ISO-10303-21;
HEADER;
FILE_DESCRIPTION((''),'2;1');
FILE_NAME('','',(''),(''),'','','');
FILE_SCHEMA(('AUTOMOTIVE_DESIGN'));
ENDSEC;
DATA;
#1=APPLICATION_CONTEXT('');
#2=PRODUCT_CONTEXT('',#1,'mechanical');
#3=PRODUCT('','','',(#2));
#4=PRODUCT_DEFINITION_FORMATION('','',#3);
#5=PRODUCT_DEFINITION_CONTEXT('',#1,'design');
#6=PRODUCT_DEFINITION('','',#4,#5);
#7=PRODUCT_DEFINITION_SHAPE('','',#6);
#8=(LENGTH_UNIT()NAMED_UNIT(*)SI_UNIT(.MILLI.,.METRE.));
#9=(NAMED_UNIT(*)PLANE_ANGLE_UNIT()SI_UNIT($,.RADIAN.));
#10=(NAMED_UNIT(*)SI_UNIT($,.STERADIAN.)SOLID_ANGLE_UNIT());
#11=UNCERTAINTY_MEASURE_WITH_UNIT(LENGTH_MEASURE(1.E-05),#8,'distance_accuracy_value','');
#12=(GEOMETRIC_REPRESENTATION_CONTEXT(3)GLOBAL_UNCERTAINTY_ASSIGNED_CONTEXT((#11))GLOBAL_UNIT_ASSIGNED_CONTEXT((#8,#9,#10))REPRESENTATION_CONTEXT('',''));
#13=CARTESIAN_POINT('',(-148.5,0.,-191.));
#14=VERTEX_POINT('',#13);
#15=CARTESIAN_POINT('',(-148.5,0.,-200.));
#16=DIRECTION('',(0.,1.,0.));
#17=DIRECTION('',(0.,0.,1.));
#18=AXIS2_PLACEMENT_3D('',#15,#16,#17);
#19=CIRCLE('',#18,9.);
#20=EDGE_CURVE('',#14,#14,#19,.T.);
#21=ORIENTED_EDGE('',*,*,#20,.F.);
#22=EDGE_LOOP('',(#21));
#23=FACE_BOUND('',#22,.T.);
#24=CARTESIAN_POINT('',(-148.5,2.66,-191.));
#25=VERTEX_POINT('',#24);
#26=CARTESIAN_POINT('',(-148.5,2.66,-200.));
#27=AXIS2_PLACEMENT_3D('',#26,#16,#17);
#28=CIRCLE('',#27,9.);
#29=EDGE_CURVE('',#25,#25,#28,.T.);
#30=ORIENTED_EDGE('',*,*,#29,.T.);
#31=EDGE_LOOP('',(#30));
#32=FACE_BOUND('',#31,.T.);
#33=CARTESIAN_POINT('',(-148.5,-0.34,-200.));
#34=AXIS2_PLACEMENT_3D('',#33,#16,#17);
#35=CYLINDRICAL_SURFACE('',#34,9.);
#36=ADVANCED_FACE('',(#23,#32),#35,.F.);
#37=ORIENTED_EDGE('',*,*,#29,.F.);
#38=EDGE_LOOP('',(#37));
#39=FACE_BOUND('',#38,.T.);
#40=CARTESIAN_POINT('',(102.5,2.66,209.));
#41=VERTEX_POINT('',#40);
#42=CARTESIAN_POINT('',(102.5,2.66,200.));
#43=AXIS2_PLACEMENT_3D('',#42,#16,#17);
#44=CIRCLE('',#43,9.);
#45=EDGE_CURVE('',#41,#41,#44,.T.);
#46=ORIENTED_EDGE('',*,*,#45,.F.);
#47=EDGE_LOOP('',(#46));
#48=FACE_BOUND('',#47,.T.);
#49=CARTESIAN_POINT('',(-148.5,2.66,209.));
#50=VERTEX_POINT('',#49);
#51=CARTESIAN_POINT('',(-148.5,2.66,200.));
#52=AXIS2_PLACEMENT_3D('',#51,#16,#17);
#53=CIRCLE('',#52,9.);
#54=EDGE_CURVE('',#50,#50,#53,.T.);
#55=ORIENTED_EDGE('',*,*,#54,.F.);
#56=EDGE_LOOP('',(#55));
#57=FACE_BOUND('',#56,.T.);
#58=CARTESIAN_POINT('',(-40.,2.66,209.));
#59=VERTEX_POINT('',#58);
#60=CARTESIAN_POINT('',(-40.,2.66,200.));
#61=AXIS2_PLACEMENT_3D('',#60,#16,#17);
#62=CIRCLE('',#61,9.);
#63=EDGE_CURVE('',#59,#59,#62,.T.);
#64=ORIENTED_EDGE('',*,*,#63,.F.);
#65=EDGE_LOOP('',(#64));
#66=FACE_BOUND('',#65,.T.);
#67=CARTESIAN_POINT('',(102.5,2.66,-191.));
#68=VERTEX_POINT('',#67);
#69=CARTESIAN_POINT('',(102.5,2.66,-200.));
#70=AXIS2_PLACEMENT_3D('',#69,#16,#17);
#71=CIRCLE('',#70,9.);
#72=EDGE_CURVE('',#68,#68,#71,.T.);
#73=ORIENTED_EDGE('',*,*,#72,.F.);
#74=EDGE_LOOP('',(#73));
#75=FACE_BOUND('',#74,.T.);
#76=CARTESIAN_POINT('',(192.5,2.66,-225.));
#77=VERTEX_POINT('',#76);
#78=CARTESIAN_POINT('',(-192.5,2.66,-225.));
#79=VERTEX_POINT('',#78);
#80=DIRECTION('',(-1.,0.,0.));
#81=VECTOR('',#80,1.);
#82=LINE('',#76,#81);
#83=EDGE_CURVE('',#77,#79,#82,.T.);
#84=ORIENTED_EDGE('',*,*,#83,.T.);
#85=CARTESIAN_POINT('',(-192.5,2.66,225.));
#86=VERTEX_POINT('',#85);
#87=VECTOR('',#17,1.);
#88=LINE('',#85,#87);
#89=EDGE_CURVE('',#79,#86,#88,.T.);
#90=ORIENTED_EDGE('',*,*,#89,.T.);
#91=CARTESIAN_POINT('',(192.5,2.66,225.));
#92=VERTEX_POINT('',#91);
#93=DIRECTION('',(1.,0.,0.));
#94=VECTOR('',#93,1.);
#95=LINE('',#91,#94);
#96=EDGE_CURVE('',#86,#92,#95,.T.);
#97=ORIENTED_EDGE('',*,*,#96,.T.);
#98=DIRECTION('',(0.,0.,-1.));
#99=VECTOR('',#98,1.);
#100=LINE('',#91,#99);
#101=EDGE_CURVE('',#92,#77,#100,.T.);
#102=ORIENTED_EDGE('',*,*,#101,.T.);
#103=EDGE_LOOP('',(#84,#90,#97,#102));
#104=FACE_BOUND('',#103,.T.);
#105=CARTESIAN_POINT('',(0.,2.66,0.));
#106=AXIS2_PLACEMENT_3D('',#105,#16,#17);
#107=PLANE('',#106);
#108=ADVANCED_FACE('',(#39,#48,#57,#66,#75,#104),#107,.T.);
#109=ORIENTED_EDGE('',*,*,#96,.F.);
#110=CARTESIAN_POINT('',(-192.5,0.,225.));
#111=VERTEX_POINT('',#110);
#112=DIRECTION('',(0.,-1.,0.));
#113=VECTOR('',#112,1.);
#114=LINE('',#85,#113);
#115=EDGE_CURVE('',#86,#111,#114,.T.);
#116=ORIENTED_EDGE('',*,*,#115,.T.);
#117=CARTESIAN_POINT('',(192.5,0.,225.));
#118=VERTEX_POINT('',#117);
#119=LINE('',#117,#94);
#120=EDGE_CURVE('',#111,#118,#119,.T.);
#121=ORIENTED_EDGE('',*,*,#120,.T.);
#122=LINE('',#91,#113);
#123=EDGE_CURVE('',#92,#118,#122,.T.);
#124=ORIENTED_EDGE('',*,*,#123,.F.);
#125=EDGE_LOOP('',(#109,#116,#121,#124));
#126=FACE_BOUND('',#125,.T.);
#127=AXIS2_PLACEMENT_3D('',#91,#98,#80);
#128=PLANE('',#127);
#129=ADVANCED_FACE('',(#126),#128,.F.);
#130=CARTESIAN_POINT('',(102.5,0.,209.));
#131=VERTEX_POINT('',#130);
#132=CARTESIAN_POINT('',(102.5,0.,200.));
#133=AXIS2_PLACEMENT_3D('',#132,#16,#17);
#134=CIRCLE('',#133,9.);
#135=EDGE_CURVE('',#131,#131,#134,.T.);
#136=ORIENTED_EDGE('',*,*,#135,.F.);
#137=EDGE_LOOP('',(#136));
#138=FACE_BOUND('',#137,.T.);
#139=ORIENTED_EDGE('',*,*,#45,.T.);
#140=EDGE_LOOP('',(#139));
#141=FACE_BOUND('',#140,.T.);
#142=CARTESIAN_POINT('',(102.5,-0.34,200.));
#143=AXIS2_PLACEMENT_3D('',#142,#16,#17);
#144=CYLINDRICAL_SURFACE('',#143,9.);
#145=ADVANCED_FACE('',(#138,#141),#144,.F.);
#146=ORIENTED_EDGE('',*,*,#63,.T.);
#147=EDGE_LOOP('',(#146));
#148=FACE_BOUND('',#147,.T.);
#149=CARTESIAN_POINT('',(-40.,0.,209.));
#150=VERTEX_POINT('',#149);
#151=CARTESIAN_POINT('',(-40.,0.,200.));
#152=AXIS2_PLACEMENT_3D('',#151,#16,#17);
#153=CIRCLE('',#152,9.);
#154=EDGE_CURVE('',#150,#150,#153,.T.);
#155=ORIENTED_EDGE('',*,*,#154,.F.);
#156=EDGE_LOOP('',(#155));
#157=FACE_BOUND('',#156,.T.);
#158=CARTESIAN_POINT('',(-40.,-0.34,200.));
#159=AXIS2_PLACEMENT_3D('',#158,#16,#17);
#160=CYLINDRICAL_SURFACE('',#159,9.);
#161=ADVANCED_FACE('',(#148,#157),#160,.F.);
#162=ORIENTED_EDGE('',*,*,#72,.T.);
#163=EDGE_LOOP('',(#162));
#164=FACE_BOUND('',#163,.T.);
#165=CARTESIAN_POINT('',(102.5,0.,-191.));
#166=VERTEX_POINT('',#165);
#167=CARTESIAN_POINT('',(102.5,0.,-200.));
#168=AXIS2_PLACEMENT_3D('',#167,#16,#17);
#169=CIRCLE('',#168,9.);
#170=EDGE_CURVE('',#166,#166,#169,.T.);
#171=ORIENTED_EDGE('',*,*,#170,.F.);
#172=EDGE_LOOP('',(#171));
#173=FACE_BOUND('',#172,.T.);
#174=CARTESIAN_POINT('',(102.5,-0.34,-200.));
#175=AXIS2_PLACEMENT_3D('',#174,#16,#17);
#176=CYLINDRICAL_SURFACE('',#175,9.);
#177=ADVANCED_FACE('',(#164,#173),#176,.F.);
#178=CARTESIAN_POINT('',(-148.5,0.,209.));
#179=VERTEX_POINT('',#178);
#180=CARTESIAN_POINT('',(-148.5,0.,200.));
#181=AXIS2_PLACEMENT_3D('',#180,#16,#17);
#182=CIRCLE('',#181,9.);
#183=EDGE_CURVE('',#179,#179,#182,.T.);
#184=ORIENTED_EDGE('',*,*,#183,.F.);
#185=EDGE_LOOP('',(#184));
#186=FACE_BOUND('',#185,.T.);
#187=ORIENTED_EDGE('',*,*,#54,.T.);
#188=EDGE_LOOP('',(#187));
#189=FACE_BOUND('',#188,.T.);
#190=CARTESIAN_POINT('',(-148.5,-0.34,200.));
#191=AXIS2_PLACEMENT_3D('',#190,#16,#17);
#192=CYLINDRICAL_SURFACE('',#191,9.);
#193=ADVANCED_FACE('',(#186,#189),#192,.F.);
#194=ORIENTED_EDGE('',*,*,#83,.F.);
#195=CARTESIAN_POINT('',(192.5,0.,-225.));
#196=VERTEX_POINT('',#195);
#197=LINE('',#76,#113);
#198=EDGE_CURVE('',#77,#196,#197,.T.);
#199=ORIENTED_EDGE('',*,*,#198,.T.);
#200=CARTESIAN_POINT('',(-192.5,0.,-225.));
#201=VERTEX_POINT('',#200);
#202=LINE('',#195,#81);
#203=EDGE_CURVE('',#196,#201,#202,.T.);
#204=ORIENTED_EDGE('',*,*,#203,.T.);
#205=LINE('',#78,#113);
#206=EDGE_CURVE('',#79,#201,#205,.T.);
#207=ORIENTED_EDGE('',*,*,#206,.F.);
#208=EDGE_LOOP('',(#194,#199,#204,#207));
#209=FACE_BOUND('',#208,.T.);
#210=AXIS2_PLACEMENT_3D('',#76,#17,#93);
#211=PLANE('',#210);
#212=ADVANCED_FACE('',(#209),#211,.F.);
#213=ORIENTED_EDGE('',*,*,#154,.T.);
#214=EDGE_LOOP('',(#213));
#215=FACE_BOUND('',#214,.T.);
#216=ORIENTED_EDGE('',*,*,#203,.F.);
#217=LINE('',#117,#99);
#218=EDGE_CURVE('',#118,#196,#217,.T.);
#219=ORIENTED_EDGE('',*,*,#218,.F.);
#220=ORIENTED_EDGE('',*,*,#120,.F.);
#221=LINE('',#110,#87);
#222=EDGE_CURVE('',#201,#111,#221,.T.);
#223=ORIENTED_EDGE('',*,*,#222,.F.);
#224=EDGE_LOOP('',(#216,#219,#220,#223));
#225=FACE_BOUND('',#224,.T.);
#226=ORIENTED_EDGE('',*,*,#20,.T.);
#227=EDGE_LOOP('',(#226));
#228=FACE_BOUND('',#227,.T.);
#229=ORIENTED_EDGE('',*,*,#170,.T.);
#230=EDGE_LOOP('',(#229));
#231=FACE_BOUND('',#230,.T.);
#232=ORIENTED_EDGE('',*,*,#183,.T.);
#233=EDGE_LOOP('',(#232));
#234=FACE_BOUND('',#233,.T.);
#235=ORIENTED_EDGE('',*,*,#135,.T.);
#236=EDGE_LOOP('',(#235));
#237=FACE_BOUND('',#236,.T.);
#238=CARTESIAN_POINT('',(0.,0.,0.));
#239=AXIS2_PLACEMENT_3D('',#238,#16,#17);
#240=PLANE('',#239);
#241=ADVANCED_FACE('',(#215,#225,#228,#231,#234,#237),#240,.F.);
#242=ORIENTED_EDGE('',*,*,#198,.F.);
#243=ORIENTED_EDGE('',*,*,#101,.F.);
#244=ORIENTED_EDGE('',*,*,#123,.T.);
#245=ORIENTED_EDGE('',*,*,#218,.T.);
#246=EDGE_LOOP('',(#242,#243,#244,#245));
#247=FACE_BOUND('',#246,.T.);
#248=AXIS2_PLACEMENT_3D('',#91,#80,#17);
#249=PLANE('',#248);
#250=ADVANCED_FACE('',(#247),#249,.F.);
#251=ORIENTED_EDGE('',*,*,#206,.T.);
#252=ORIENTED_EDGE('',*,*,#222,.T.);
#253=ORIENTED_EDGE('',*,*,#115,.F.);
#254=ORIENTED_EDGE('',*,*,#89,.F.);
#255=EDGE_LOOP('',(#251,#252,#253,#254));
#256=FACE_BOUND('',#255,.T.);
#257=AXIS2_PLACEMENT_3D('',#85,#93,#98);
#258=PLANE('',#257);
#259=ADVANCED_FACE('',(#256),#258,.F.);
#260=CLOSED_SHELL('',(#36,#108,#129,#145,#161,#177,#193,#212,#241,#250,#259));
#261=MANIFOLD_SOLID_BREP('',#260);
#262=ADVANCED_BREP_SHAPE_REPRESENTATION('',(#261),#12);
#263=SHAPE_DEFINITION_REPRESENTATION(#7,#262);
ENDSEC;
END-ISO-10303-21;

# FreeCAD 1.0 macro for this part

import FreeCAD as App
import Part
import Sketcher
from FreeCAD import Vector


def add_polygon(sketch, points):
    """Adds a closed chain of lines whose ends are joined by coincident constraints."""
    first, n = sketch.GeometryCount, len(points)
    for a, b in zip(points, points[1:] + points[:1]):
        sketch.addGeometry(Part.LineSegment(App.Vector(*a, 0), App.Vector(*b, 0)), False)
    for i in range(n):
        sketch.addConstraint(Sketcher.Constraint("Coincident", first + i, 2, first + (i + 1) % n, 1))

doc = App.newDocument("Part")
body = doc.addObject("PartDesign::Body", "Body")

sketch1 = body.newObject("Sketcher::SketchObject", "Sketch")
sketch1.AttachmentSupport = (doc.getObject("XZ_Plane"), [""])
sketch1.MapMode = "FlatFace"
add_polygon(sketch1, [(-192, -225), (-192, 225), (192, 225), (192, -225)])
sketch1.addConstraint(Sketcher.Constraint("Vertical", 0))
sketch1.addConstraint(Sketcher.Constraint("Horizontal", 1))
sketch1.addConstraint(Sketcher.Constraint("Vertical", 2))
sketch1.addConstraint(Sketcher.Constraint("Horizontal", 3))
sketch1.addConstraint(Sketcher.Constraint("Symmetric", 0, 2, 2, 2, -1, 1))
sketch1.addConstraint(Sketcher.Constraint("DistanceX", 1, 1, 1, 2, 385.0))
sketch1.addConstraint(Sketcher.Constraint("DistanceY", 0, 1, 0, 2, 450.0))
pad1 = body.newObject("PartDesign::Pad", "Pad")
pad1.Profile = sketch1
pad1.Length = 2.66
pad1.Reversed = True

sketch2 = body.newObject("Sketcher::SketchObject", "Sketch001")
sketch2.AttachmentSupport = (doc.getObject("XZ_Plane"), [""])
sketch2.MapMode = "FlatFace"
sketch2.AttachmentOffset = App.Placement(Vector(0, 0, -2.66), App.Rotation())
sketch2.addGeometry(Part.Circle(Vector(-148, -200, 0), Vector(0, 0, 1), 9), False)
sketch2.addGeometry(Part.Circle(Vector(102, -200, 0), Vector(0, 0, 1), 9), False)
sketch2.addGeometry(Part.Circle(Vector(-148, 200, 0), Vector(0, 0, 1), 9), False)
sketch2.addGeometry(Part.Circle(Vector(-40, 200, 0), Vector(0, 0, 1), 9), False)
sketch2.addGeometry(Part.Circle(Vector(102, 200, 0), Vector(0, 0, 1), 9), False)
sketch2.addConstraint(Sketcher.Constraint("Equal", 0, 1))
sketch2.addConstraint(Sketcher.Constraint("Equal", 1, 2))
sketch2.addConstraint(Sketcher.Constraint("Equal", 2, 3))
sketch2.addConstraint(Sketcher.Constraint("Equal", 3, 4))
sketch2.addConstraint(Sketcher.Constraint("Symmetric", 0, 3, 2, 3, -1))
sketch2.addConstraint(Sketcher.Constraint("Symmetric", 1, 3, 4, 3, -1))
sketch2.addConstraint(Sketcher.Constraint("Horizontal", 0, 3, 1, 3))
sketch2.addConstraint(Sketcher.Constraint("Horizontal", 2, 3, 3, 3))
sketch2.addConstraint(Sketcher.Constraint("Diameter", 0, 18.0))
sketch2.addConstraint(Sketcher.Constraint("DistanceY", 0, 3, -1, 1, 200.0))
sketch2.addConstraint(Sketcher.Constraint("DistanceX", 3, 3, -1, 1, 40.0))
sketch2.addConstraint(Sketcher.Constraint("DistanceX", 0, 3, 1, 3, 251.0))
sketch2.addConstraint(Sketcher.Constraint("DistanceX", 0, 3, -1, 1, 148.5))
pocket1 = body.newObject("PartDesign::Pocket", "Pocket")
pocket1.Profile = sketch2
pocket1.Length = 3
pocket1.Reversed = True

doc.recompute()
